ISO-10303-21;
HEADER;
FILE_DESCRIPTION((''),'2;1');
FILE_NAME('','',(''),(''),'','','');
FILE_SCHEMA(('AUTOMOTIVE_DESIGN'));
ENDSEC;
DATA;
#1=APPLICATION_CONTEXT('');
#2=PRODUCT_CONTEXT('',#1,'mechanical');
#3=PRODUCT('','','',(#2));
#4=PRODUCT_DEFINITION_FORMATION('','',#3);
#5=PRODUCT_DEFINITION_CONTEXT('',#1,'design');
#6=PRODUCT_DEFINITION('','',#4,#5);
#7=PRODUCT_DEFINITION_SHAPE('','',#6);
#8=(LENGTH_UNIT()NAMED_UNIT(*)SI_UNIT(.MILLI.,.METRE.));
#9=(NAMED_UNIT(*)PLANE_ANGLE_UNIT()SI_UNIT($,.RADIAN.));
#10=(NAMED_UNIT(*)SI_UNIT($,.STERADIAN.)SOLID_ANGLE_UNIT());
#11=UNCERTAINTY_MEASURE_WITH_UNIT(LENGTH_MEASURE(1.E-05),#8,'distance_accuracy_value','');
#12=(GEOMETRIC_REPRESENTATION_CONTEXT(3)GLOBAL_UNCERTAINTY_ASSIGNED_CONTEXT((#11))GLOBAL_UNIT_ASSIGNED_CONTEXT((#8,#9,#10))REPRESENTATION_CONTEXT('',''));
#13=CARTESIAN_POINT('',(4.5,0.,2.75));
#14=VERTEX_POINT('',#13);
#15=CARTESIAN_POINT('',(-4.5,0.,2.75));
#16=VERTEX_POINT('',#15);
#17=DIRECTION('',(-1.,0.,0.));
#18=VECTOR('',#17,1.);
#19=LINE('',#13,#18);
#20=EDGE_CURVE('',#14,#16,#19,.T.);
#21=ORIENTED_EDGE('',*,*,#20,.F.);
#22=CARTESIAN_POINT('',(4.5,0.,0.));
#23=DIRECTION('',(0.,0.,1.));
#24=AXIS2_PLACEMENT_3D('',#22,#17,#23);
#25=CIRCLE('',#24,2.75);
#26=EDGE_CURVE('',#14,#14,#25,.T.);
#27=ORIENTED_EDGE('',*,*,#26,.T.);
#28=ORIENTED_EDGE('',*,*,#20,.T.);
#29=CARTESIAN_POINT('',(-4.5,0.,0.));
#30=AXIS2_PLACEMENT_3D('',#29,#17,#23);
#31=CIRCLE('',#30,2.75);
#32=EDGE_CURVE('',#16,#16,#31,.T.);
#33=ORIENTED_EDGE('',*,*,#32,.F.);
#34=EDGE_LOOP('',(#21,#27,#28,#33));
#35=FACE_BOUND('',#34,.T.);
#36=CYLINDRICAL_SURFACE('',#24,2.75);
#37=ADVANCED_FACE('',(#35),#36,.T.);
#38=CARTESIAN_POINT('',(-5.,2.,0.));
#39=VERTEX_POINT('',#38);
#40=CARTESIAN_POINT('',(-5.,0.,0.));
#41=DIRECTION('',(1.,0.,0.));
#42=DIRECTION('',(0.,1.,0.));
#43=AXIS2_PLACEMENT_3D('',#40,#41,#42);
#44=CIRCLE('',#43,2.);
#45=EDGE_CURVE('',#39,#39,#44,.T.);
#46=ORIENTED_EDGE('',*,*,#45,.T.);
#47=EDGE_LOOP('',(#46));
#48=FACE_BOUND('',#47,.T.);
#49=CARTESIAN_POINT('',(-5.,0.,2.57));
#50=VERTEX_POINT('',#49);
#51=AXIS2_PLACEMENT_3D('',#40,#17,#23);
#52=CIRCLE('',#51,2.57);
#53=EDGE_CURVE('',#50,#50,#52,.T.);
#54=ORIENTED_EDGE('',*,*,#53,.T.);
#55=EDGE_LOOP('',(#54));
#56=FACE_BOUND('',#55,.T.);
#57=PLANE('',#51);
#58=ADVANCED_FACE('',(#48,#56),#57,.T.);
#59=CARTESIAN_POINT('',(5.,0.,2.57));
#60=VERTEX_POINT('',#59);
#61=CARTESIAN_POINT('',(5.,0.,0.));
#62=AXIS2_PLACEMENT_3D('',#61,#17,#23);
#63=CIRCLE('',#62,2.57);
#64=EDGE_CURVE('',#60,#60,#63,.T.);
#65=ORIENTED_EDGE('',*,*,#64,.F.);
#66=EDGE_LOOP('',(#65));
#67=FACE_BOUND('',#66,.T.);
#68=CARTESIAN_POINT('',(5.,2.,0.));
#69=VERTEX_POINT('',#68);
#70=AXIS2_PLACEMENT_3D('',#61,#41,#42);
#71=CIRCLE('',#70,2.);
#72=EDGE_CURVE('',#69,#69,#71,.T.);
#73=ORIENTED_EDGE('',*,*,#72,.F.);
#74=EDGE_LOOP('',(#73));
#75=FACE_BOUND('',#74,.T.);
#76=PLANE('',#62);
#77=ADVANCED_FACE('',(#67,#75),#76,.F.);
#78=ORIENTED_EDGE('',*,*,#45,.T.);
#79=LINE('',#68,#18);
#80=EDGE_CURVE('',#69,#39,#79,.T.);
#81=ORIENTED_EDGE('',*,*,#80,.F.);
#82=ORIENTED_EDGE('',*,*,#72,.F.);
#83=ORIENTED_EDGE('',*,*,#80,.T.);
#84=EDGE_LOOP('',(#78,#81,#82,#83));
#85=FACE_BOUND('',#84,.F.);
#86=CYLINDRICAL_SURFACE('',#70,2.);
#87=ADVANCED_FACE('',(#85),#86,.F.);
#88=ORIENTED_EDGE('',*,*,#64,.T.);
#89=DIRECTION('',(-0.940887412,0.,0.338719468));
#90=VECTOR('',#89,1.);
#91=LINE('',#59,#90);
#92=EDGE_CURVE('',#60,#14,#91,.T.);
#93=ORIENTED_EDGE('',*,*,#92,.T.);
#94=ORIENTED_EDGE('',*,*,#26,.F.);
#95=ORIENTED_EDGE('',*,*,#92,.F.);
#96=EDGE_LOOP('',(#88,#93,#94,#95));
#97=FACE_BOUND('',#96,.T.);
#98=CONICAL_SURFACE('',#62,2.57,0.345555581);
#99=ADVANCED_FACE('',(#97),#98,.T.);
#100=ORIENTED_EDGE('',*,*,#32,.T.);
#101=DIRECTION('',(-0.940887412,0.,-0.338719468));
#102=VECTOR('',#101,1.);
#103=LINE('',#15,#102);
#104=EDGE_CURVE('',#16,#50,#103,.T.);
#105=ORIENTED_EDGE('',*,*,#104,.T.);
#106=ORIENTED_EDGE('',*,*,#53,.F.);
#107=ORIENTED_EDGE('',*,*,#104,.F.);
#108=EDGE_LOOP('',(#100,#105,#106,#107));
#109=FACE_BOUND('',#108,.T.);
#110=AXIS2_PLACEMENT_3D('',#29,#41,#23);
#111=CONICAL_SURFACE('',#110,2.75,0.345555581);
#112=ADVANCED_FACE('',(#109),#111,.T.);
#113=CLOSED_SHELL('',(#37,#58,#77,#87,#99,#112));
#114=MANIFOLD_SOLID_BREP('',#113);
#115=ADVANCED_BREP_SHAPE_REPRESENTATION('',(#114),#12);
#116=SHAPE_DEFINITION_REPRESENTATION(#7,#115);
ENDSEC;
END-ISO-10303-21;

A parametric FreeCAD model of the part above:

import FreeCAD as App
import Part
import Sketcher

doc = App.newDocument("Part")
body = doc.addObject("PartDesign::Body", "Body")

# Sketch on XZ plane
sketch1 = body.newObject("Sketcher::SketchObject", "Sketch")
sketch1.AttachmentSupport = (doc.getObject("XZ_Plane"), [""])
sketch1.MapMode = "FlatFace"
sketch1.addGeometry([
    Part.LineSegment(App.Vector(-5, 2.6, 0), App.Vector(-5, 0, 0)),  # 0
    Part.LineSegment(App.Vector(-5, 0, 0), App.Vector(5, 0, 0)),  # 1
    Part.LineSegment(App.Vector(5, 0, 0), App.Vector(5, 2.6, 0)),  # 2
    Part.LineSegment(App.Vector(5, 2.6, 0), App.Vector(4.5, 2.8, 0)),  # 3
    Part.LineSegment(App.Vector(4.5, 2.8, 0), App.Vector(-4.5, 2.8, 0)),  # 4
    Part.LineSegment(App.Vector(-4.5, 2.8, 0), App.Vector(-5, 2.6, 0)),  # 5
], False)
sketch1.addConstraint([
    Sketcher.Constraint("Coincident", 0, 2, 1, 1),
    Sketcher.Constraint("Coincident", 1, 2, 2, 1),
    Sketcher.Constraint("Coincident", 2, 2, 3, 1),
    Sketcher.Constraint("Coincident", 3, 2, 4, 1),
    Sketcher.Constraint("Coincident", 4, 2, 5, 1),
    Sketcher.Constraint("Coincident", 5, 2, 0, 1),
    Sketcher.Constraint("Vertical", 0),
    Sketcher.Constraint("Horizontal", 1),
    Sketcher.Constraint("Vertical", 2),
    Sketcher.Constraint("Horizontal", 4),
    Sketcher.Constraint("Symmetric", 0, 2, 1, 2, -1, 1),
    Sketcher.Constraint("Horizontal", 2, 2, 5, 2),
    Sketcher.Constraint("Equal", 3, 5),
    Sketcher.Constraint("DistanceX", 1, 1, 1, 2, 10.0),
    Sketcher.Constraint("DistanceX", 4, 2, 4, 1, 9.0),
    Sketcher.Constraint("DistanceY", 0, 2, 0, 1, 2.57),
    Sketcher.Constraint("DistanceY", -1, 1, 3, 2, 2.75),
])
revolution = body.newObject("PartDesign::Revolution", "Revolution")
revolution.Profile = sketch1
revolution.ReferenceAxis = (sketch1, ["H_Axis"])
revolution.Angle = 360

# Sketch on YZ plane
sketch2 = body.newObject("Sketcher::SketchObject", "Sketch001")
sketch2.AttachmentSupport = (doc.getObject("YZ_Plane"), [""])
sketch2.MapMode = "FlatFace"
sketch2.AttachmentOffset = App.Placement(App.Vector(0, 0, 5), App.Rotation())
sketch2.addGeometry(Part.Circle(App.Vector(0, 0, 0), App.Vector(0, 0, 1), 2), False)
sketch2.addConstraint([
    Sketcher.Constraint("Coincident", 0, 3, -1, 1),
    Sketcher.Constraint("Diameter", 0, 4.0),
])
pocket1 = body.newObject("PartDesign::Pocket", "Pocket")
pocket1.Profile = sketch2
pocket1.Type = "ThroughAll"

doc.recompute()
